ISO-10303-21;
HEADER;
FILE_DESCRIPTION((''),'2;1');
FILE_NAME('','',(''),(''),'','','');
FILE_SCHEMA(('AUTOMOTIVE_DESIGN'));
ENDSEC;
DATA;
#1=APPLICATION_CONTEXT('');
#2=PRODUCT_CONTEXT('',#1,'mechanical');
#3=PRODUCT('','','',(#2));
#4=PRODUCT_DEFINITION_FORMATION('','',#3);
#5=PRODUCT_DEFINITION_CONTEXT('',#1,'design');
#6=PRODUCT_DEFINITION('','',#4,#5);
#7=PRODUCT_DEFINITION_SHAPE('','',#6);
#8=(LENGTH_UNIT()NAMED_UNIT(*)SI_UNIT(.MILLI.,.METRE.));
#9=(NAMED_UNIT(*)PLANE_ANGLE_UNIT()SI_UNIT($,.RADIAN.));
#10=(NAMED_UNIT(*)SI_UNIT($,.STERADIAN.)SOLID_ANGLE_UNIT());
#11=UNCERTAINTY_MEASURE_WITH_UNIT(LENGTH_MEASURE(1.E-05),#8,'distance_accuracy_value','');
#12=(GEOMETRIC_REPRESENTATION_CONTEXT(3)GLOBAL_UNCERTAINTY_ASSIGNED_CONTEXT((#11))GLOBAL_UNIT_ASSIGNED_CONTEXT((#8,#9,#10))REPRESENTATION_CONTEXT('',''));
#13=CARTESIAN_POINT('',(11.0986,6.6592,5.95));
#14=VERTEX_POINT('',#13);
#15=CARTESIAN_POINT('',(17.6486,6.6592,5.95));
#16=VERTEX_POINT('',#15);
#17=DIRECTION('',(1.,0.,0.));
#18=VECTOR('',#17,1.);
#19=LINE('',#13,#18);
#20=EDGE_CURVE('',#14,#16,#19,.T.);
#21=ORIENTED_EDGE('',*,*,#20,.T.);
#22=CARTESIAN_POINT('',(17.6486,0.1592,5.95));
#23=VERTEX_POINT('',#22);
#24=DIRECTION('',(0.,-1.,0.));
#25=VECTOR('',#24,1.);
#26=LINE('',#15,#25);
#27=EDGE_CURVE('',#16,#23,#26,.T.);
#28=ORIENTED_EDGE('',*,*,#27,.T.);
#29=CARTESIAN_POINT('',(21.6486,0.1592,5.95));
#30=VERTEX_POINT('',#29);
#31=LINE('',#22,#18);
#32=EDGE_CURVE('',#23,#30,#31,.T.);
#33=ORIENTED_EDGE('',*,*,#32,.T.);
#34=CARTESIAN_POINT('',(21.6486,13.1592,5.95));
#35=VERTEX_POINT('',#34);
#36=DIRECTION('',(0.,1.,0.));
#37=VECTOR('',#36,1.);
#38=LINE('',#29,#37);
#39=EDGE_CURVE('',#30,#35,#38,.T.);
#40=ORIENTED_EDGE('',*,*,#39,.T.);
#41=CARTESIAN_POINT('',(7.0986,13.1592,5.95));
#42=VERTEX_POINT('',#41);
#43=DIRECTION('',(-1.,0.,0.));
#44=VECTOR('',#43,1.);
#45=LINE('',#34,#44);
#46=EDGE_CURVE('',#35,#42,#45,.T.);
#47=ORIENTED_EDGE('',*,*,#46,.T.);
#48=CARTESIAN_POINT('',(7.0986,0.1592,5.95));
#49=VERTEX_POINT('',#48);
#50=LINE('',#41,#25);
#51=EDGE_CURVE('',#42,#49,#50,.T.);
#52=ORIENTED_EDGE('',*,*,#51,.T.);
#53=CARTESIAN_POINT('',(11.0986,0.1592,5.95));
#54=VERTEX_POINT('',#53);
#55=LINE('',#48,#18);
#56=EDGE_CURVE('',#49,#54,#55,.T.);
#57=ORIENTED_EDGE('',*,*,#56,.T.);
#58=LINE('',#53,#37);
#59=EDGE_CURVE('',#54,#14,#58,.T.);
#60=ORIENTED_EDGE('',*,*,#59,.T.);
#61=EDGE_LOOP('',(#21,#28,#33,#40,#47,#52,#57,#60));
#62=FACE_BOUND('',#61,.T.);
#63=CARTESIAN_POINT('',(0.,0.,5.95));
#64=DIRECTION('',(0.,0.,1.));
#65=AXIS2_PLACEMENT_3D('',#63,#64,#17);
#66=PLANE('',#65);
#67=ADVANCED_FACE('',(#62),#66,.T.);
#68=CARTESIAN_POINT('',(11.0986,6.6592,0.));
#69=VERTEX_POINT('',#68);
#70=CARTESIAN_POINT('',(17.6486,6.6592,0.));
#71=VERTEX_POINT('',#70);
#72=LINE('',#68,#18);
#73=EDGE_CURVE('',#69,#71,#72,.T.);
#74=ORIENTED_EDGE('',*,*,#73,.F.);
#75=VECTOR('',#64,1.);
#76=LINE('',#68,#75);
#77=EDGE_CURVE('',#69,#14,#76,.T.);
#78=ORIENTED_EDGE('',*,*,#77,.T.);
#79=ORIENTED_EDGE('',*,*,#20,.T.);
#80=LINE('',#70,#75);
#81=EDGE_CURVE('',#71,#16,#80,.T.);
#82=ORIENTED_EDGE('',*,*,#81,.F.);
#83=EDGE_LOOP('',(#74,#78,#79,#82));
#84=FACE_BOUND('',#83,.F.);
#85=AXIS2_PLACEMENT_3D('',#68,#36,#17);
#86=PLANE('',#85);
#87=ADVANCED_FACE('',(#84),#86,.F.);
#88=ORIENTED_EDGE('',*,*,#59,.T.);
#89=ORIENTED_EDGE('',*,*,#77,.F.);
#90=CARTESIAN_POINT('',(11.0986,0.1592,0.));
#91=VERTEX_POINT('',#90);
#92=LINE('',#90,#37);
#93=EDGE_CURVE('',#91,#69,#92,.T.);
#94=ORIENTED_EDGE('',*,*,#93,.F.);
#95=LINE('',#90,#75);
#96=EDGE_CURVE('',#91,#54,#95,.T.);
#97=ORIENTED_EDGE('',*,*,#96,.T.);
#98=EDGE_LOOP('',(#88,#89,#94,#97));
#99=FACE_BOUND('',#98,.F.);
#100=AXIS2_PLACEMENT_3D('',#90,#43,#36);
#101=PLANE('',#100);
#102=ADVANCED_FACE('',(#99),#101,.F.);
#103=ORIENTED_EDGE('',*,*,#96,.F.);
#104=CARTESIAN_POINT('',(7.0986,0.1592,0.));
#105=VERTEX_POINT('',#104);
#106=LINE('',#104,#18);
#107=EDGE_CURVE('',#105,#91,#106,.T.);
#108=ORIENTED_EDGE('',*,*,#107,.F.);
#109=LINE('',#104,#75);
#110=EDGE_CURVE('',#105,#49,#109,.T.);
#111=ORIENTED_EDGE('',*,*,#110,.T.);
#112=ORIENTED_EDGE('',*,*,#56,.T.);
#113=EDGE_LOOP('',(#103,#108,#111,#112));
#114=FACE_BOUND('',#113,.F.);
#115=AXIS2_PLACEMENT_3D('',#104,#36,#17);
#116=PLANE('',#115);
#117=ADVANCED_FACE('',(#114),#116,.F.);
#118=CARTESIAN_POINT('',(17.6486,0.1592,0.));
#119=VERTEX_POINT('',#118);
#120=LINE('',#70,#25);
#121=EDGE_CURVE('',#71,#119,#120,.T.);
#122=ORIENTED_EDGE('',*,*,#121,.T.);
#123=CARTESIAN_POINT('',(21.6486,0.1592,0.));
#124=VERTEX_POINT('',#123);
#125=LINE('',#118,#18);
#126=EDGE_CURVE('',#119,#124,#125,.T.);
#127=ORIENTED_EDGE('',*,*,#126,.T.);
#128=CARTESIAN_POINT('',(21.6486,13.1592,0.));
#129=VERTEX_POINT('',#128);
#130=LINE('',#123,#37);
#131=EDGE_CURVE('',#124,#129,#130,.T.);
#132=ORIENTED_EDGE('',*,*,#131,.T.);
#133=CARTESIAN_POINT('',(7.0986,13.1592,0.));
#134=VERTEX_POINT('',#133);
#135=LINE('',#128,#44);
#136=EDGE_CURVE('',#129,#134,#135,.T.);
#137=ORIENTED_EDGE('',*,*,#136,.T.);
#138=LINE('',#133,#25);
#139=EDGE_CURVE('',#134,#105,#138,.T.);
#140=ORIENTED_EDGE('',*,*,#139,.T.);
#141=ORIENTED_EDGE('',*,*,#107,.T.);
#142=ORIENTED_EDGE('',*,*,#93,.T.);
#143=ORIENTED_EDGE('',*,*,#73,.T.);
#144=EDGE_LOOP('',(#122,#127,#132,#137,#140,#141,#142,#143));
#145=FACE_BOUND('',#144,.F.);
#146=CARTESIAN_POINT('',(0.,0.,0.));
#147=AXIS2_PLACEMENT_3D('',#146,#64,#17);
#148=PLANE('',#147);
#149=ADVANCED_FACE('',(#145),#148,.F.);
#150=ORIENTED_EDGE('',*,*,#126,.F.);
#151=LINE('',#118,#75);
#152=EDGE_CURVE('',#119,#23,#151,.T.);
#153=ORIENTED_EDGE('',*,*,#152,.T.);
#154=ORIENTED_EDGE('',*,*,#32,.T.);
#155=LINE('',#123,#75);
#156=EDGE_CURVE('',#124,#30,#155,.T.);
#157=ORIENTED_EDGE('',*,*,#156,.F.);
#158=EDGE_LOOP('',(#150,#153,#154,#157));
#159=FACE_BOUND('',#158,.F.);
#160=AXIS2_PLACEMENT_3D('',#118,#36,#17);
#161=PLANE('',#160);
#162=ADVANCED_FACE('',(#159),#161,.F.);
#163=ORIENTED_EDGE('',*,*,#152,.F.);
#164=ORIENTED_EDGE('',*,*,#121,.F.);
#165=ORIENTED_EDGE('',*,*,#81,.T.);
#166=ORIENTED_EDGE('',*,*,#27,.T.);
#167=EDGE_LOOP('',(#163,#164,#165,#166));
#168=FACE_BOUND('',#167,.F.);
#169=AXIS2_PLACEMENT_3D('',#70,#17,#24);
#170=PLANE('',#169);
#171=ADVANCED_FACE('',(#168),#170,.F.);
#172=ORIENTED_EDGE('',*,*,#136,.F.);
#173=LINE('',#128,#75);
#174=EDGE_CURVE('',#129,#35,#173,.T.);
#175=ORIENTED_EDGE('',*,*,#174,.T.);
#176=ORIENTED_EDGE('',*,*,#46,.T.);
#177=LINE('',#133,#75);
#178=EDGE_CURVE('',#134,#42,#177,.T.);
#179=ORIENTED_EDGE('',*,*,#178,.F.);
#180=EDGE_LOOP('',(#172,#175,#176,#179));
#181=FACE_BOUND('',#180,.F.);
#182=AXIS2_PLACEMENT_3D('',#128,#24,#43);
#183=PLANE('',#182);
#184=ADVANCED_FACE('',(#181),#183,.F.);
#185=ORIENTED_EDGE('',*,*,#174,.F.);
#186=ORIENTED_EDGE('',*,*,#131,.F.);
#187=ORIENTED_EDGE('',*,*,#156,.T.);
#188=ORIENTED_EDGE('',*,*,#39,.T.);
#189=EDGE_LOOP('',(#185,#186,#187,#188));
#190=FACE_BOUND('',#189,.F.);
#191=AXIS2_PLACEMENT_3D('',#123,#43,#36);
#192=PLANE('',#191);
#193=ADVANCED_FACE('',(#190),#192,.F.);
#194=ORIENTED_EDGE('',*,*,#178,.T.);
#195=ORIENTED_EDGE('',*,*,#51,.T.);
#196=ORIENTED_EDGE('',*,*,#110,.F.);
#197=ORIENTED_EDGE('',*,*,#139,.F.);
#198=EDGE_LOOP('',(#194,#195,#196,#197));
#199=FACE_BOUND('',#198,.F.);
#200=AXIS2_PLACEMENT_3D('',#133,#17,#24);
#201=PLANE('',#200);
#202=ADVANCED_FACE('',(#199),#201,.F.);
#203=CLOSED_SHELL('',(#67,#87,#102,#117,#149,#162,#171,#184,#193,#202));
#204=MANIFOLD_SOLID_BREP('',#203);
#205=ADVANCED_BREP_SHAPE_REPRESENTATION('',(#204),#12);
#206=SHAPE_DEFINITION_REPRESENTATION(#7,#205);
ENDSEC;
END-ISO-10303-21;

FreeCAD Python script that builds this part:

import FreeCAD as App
import Part
import Sketcher


def add_polygon(sketch, points):
    """Adds a closed chain of lines whose ends are joined by coincident constraints."""
    first, n = sketch.GeometryCount, len(points)
    for a, b in zip(points, points[1:] + points[:1]):
        sketch.addGeometry(Part.LineSegment(App.Vector(*a, 0), App.Vector(*b, 0)), False)
    for i in range(n):
        sketch.addConstraint(Sketcher.Constraint("Coincident", first + i, 2, first + (i + 1) % n, 1))

doc = App.newDocument("Part")
body = doc.addObject("PartDesign::Body", "Body")

# Sketch on XY plane
sketch1 = body.newObject("Sketcher::SketchObject", "Sketch")
sketch1.AttachmentSupport = (doc.getObject("XY_Plane"), [""])
sketch1.MapMode = "FlatFace"
add_polygon(sketch1, [(7.1, 13.2), (7.1, 0.2), (11.1, 0.2), (11.1, 6.7), (17.6, 6.7), (17.6, 0.2), (21.6, 0.2), (21.6, 13.2)])  # lines 0-7
sketch1.addConstraint([
    Sketcher.Constraint("Vertical", 0),
    Sketcher.Constraint("Horizontal", 1),
    Sketcher.Constraint("Vertical", 2),
    Sketcher.Constraint("Horizontal", 3),
    Sketcher.Constraint("Vertical", 4),
    Sketcher.Constraint("Horizontal", 5),
    Sketcher.Constraint("Vertical", 6),
    Sketcher.Constraint("Horizontal", 7),
    Sketcher.Constraint("Horizontal", 1, 2, 4, 2),
    Sketcher.Constraint("Equal", 1, 5),
    Sketcher.Constraint("DistanceX", 1, 1, 1, 2, 4.0),
    Sketcher.Constraint("DistanceY", 0, 2, 0, 1, 13.0),
    Sketcher.Constraint("DistanceY", 2, 1, 2, 2, 6.5),
    Sketcher.Constraint("DistanceX", 3, 1, 3, 2, 6.55),
    Sketcher.Constraint("DistanceX", -1, 1, 0, 2, 7.0986),
    Sketcher.Constraint("DistanceY", -1, 1, 0, 2, 0.1592),
])
pad1 = body.newObject("PartDesign::Pad", "Pad")
pad1.Profile = sketch1
pad1.Length = 5.95

doc.recompute()
